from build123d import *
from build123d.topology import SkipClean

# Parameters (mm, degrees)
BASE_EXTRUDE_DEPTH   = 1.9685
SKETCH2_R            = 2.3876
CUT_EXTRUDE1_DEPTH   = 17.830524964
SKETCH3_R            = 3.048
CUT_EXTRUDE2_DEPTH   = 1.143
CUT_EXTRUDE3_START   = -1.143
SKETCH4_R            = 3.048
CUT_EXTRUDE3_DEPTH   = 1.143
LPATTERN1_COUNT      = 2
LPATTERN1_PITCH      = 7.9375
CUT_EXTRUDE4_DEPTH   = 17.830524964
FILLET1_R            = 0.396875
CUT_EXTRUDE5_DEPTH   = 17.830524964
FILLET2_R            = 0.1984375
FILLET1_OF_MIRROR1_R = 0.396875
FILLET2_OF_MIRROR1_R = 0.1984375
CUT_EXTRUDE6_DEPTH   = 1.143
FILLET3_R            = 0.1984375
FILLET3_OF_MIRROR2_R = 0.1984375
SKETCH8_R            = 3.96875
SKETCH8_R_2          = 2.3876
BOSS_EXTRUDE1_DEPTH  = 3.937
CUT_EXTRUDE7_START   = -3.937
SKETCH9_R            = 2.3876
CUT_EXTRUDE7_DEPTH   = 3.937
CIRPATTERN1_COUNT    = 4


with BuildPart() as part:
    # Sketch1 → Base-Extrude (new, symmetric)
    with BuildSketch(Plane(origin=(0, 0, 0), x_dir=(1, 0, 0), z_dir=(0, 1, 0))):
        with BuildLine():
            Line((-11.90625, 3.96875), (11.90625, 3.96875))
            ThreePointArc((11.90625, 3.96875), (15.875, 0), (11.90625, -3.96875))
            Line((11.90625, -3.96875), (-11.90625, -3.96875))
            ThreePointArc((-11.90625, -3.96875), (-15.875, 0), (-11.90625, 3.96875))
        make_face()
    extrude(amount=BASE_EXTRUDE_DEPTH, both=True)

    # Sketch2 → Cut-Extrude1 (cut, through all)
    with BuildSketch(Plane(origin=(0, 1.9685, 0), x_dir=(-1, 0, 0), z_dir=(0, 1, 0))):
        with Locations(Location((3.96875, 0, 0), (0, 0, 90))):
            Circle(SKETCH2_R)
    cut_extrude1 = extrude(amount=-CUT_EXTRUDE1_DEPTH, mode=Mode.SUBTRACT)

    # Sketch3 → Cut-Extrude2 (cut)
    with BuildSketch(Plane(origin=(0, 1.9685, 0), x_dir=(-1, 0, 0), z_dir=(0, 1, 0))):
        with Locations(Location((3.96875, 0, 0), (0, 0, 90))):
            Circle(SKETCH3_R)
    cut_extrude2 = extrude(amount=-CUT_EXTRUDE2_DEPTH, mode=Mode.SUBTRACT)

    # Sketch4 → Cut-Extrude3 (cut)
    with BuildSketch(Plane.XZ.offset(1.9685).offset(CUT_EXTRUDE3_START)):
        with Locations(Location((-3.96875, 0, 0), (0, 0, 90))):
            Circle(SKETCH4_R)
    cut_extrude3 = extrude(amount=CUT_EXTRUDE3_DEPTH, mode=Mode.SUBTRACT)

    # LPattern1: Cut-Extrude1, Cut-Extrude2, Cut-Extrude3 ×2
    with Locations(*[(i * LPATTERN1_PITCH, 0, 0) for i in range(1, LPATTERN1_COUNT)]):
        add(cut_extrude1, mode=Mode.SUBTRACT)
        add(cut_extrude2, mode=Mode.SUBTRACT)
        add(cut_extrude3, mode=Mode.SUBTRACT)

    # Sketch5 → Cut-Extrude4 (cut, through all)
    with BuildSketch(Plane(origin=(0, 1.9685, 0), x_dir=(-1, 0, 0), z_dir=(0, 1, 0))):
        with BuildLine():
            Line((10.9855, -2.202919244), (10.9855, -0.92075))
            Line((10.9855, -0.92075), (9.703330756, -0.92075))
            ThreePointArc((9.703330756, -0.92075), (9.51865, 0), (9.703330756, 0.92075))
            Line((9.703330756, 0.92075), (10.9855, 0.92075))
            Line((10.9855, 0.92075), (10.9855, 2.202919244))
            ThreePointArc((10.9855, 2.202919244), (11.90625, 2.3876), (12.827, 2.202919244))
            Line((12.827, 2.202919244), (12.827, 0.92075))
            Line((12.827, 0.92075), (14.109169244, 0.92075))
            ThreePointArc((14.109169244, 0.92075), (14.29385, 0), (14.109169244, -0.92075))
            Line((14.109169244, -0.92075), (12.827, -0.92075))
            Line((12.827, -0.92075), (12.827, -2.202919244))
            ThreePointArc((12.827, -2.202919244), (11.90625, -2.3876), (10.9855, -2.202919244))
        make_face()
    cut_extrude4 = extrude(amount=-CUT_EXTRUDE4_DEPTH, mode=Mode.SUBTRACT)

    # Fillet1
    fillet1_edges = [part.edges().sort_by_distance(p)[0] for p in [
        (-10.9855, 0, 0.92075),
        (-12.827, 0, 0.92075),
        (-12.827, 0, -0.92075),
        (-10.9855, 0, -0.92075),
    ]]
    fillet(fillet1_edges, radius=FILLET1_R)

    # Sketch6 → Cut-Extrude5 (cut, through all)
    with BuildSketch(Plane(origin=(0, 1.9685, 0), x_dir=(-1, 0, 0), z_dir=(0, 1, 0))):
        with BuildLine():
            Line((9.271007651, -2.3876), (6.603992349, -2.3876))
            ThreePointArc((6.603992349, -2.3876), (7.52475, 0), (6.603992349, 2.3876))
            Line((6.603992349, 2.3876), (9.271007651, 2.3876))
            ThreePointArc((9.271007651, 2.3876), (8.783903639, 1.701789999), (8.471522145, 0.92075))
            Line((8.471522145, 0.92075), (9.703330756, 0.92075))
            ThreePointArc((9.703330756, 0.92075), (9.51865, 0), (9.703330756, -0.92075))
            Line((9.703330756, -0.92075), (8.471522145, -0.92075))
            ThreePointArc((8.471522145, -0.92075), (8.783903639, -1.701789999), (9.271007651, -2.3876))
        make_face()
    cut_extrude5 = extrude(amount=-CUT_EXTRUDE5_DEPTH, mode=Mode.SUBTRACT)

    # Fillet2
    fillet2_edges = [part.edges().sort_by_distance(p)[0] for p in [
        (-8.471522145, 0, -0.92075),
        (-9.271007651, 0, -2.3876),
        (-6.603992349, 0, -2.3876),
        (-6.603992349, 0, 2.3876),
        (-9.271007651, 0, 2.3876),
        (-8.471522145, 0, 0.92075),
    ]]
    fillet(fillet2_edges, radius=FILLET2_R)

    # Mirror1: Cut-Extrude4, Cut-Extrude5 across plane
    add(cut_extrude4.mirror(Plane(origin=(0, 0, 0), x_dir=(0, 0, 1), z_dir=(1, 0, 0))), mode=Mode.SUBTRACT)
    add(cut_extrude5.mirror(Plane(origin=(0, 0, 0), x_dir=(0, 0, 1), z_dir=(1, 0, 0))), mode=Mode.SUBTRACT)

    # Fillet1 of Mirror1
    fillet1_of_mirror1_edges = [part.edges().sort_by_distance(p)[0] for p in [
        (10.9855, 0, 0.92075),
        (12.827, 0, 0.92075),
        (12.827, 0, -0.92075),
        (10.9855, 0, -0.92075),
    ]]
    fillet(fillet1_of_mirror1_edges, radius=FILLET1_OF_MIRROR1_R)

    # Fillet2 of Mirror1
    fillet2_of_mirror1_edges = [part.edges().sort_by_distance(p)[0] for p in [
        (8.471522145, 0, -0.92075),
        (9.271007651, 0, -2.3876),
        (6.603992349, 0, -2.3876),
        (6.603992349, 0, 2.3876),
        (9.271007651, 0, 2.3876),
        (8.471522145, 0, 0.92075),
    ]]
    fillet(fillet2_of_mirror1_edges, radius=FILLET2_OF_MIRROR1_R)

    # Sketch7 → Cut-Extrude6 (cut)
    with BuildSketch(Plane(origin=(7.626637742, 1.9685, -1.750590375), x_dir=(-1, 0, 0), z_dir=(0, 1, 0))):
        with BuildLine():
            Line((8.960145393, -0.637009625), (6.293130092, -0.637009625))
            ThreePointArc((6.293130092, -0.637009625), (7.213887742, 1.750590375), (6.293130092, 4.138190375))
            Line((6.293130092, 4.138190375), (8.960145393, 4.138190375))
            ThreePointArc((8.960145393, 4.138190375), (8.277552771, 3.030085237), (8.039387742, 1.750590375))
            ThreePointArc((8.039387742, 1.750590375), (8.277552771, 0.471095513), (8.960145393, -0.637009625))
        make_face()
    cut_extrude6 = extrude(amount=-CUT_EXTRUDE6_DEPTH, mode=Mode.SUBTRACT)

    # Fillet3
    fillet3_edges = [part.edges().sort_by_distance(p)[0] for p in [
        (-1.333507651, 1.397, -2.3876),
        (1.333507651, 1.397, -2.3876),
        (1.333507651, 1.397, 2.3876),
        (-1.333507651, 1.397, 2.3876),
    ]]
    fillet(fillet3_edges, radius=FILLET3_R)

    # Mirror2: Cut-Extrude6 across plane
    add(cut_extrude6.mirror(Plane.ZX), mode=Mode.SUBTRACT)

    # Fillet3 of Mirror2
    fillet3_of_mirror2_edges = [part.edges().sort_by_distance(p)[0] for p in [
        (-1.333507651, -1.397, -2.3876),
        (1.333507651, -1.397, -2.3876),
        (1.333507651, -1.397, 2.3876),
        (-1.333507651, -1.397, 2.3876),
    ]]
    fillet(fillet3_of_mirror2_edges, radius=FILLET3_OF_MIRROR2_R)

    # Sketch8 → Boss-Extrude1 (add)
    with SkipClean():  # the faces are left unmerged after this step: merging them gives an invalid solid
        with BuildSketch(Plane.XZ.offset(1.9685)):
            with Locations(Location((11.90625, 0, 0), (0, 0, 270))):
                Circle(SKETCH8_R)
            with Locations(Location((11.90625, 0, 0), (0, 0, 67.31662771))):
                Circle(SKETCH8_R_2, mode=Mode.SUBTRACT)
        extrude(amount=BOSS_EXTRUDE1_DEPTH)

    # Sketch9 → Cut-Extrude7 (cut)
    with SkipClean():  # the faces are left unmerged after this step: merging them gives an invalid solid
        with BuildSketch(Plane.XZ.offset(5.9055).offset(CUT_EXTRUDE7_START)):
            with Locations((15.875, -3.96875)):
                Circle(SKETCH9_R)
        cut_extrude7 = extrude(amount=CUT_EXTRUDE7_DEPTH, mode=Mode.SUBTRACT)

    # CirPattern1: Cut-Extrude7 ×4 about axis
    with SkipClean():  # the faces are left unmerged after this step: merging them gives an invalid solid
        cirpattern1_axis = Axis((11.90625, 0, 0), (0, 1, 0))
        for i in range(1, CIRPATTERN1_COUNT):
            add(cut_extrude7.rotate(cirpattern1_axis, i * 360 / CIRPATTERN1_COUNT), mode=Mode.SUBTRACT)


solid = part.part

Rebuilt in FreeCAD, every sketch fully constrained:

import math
import FreeCAD as App
import Part
import Sketcher
from FreeCAD import Vector
Q = App.Units.Quantity


def edges_at(feature, points):
    """Names of the edges that pass closest to the given points."""
    edges = feature.Shape.Edges
    near = lambda p: min(range(len(edges)), key=lambda i: edges[i].distToShape(Part.Vertex(*p))[0])
    return sorted({f"Edge{near(p) + 1}" for p in points})

doc = App.newDocument("Part")
body = doc.addObject("PartDesign::Body", "Body")

# Sketch on XZ plane
sketch1 = body.newObject("Sketcher::SketchObject", "Sketch")
sketch1.AttachmentSupport = (doc.getObject("XZ_Plane"), [""])
sketch1.MapMode = "FlatFace"
sketch1.addGeometry(Part.LineSegment(Vector(11.9, -4, 0), Vector(-11.9, -4, 0)), False)
sketch1.addGeometry(Part.ArcOfCircle(Part.Circle(Vector(-11.9, 0, 0), Vector(0, 0, 1), 4), math.radians(90), math.radians(270)), False)
sketch1.addGeometry(Part.LineSegment(Vector(-11.9, 4, 0), Vector(11.9, 4, 0)), False)
sketch1.addGeometry(Part.ArcOfCircle(Part.Circle(Vector(11.9, 0, 0), Vector(0, 0, 1), 4), math.radians(-90), math.radians(90)), False)
sketch1.addConstraint(Sketcher.Constraint("Tangent", 0, 2, 1, 2))
sketch1.addConstraint(Sketcher.Constraint("Tangent", 1, 1, 2, 1))
sketch1.addConstraint(Sketcher.Constraint("Tangent", 2, 2, 3, 2))
sketch1.addConstraint(Sketcher.Constraint("Tangent", 3, 1, 0, 1))
sketch1.addConstraint(Sketcher.Constraint("Horizontal", 0))
sketch1.addConstraint(Sketcher.Constraint("Horizontal", 2))
sketch1.addConstraint(Sketcher.Constraint("Symmetric", 1, 3, 3, 3, -1, 1))
sketch1.addConstraint(Sketcher.Constraint("Radius", 1, Q("0.15625 in")))
sketch1.addConstraint(Sketcher.Constraint("DistanceX", 0, 2, 0, 1, Q("0.9375 in")))
pad1 = body.newObject("PartDesign::Pad", "Pad")
pad1.Profile = sketch1
pad1.Length = Q("0.155 in")
pad1.Midplane = True

# Sketch on XZ plane
sketch2 = body.newObject("Sketcher::SketchObject", "Sketch001")
sketch2.AttachmentSupport = (doc.getObject("XZ_Plane"), [""])
sketch2.MapMode = "FlatFace"
sketch2.AttachmentOffset = App.Placement(Vector(0, 0, -0.0775 * 25.4), App.Rotation())
sketch2.addGeometry(Part.Circle(Vector(-4, 0, 0), Vector(0, 0, 1), 2.4), False)
sketch2.addConstraint(Sketcher.Constraint("PointOnObject", 0, 3, -1))
sketch2.addConstraint(Sketcher.Constraint("Diameter", 0, Q("0.188 in")))
sketch2.addConstraint(Sketcher.Constraint("DistanceX", 0, 3, -1, 1, Q("0.15625 in")))
pocket1 = body.newObject("PartDesign::Pocket", "Pocket")
pocket1.Profile = sketch2
pocket1.Type = "ThroughAll"
pocket1.Reversed = True

# Sketch on XZ plane
sketch3 = body.newObject("Sketcher::SketchObject", "Sketch002")
sketch3.AttachmentSupport = (doc.getObject("XZ_Plane"), [""])
sketch3.MapMode = "FlatFace"
sketch3.AttachmentOffset = App.Placement(Vector(0, 0, -0.0775 * 25.4), App.Rotation())
sketch3.addGeometry(Part.Circle(Vector(-4, 0, 0), Vector(0, 0, 1), 3), False)
sketch3.addConstraint(Sketcher.Constraint("PointOnObject", 0, 3, -1))
sketch3.addConstraint(Sketcher.Constraint("Diameter", 0, Q("0.24 in")))
sketch3.addConstraint(Sketcher.Constraint("DistanceX", 0, 3, -1, 1, Q("0.15625 in")))
pocket2 = body.newObject("PartDesign::Pocket", "Pocket001")
pocket2.Profile = sketch3
pocket2.Length = Q("0.045 in")
pocket2.Reversed = True

# Sketch on XZ plane
sketch4 = body.newObject("Sketcher::SketchObject", "Sketch003")
sketch4.AttachmentSupport = (doc.getObject("XZ_Plane"), [""])
sketch4.MapMode = "FlatFace"
sketch4.AttachmentOffset = App.Placement(Vector(0, 0, 0.0325 * 25.4), App.Rotation())
sketch4.addGeometry(Part.Circle(Vector(-4, 0, 0), Vector(0, 0, 1), 3), False)
sketch4.addConstraint(Sketcher.Constraint("PointOnObject", 0, 3, -1))
sketch4.addConstraint(Sketcher.Constraint("Diameter", 0, Q("0.24 in")))
sketch4.addConstraint(Sketcher.Constraint("DistanceX", 0, 3, -1, 1, Q("0.15625 in")))
pocket3 = body.newObject("PartDesign::Pocket", "Pocket002")
pocket3.Profile = sketch4
pocket3.Length = Q("0.045 in")
pocket3.Reversed = True
doc.recompute()

linearpattern = body.newObject("PartDesign::LinearPattern", "LinearPattern")
linearpattern.Originals = [pocket1, pocket2, pocket3]
linearpattern.Direction = (doc.getObject("X_Axis"), [""])
linearpattern.Mode = "offset"
linearpattern.Offset = Q("0.3125 in")
linearpattern.Occurrences = 2
body.Tip = linearpattern

# Sketch on XZ plane
sketch5 = body.newObject("Sketcher::SketchObject", "Sketch004")
sketch5.AttachmentSupport = (doc.getObject("XZ_Plane"), [""])
sketch5.MapMode = "FlatFace"
sketch5.AttachmentOffset = App.Placement(Vector(0, 0, -0.0775 * 25.4), App.Rotation())
sketch5.addGeometry(Part.LineSegment(Vector(-11, -0.9, 0), Vector(-11, -2.2, 0)), False)
sketch5.addGeometry(Part.ArcOfCircle(Part.Circle(Vector(-11.9, 0, 0), Vector(0, 0, 1), 2.4), math.radians(-113), math.radians(-67)), False)
sketch5.addGeometry(Part.LineSegment(Vector(-12.8, -2.2, 0), Vector(-12.8, -0.9, 0)), False)
sketch5.addGeometry(Part.LineSegment(Vector(-12.8, -0.9, 0), Vector(-14.1, -0.9, 0)), False)
sketch5.addGeometry(Part.ArcOfCircle(Part.Circle(Vector(-11.9, 0, 0), Vector(0, 0, 1), 2.4), math.radians(157), math.radians(203)), False)
sketch5.addGeometry(Part.LineSegment(Vector(-14.1, 0.9, 0), Vector(-12.8, 0.9, 0)), False)
sketch5.addGeometry(Part.LineSegment(Vector(-12.8, 0.9, 0), Vector(-12.8, 2.2, 0)), False)
sketch5.addGeometry(Part.ArcOfCircle(Part.Circle(Vector(-11.9, 0, 0), Vector(0, 0, 1), 2.4), math.radians(67), math.radians(113)), False)
sketch5.addGeometry(Part.LineSegment(Vector(-11, 2.2, 0), Vector(-11, 0.9, 0)), False)
sketch5.addGeometry(Part.LineSegment(Vector(-11, 0.9, 0), Vector(-9.7, 0.9, 0)), False)
sketch5.addGeometry(Part.ArcOfCircle(Part.Circle(Vector(-11.9, 0, 0), Vector(0, 0, 1), 2.4), math.radians(-23), math.radians(23)), False)
sketch5.addGeometry(Part.LineSegment(Vector(-9.7, -0.9, 0), Vector(-11, -0.9, 0)), False)
sketch5.addConstraint(Sketcher.Constraint("Coincident", 0, 2, 1, 2))
sketch5.addConstraint(Sketcher.Constraint("Coincident", 1, 1, 2, 1))
sketch5.addConstraint(Sketcher.Constraint("Coincident", 2, 2, 3, 1))
sketch5.addConstraint(Sketcher.Constraint("Coincident", 3, 2, 4, 2))
sketch5.addConstraint(Sketcher.Constraint("Coincident", 4, 1, 5, 1))
sketch5.addConstraint(Sketcher.Constraint("Coincident", 5, 2, 6, 1))
sketch5.addConstraint(Sketcher.Constraint("Coincident", 6, 2, 7, 2))
sketch5.addConstraint(Sketcher.Constraint("Coincident", 7, 1, 8, 1))
sketch5.addConstraint(Sketcher.Constraint("Coincident", 8, 2, 9, 1))
sketch5.addConstraint(Sketcher.Constraint("Coincident", 9, 2, 10, 2))
sketch5.addConstraint(Sketcher.Constraint("Coincident", 10, 1, 11, 1))
sketch5.addConstraint(Sketcher.Constraint("Coincident", 11, 2, 0, 1))
sketch5.addConstraint(Sketcher.Constraint("Vertical", 0))
sketch5.addConstraint(Sketcher.Constraint("Vertical", 2))
sketch5.addConstraint(Sketcher.Constraint("Horizontal", 3))
sketch5.addConstraint(Sketcher.Constraint("Horizontal", 5))
sketch5.addConstraint(Sketcher.Constraint("Vertical", 6))
sketch5.addConstraint(Sketcher.Constraint("Vertical", 8))
sketch5.addConstraint(Sketcher.Constraint("Horizontal", 9))
sketch5.addConstraint(Sketcher.Constraint("Horizontal", 11))
sketch5.addConstraint(Sketcher.Constraint("Coincident", 4, 3, 1, 3))
sketch5.addConstraint(Sketcher.Constraint("Coincident", 7, 3, 1, 3))
sketch5.addConstraint(Sketcher.Constraint("Coincident", 10, 3, 1, 3))
sketch5.addConstraint(Sketcher.Constraint("Equal", 1, 4))
sketch5.addConstraint(Sketcher.Constraint("Equal", 4, 7))
sketch5.addConstraint(Sketcher.Constraint("Equal", 7, 10))
sketch5.addConstraint(Sketcher.Constraint("Symmetric", 3, 2, 4, 1, -1))
sketch5.addConstraint(Sketcher.Constraint("Symmetric", 8, 2, 11, 2, -1))
sketch5.addConstraint(Sketcher.Constraint("Horizontal", 0, 2, 1, 1))
sketch5.addConstraint(Sketcher.Constraint("Horizontal", 6, 2, 7, 1))
sketch5.addConstraint(Sketcher.Constraint("Horizontal", 5, 2, 8, 2))
sketch5.addConstraint(Sketcher.Constraint("Equal", 11, 0))
sketch5.addConstraint(Sketcher.Constraint("Radius", 1, Q("0.094 in")))
sketch5.addConstraint(Sketcher.Constraint("DistanceX", 1, 3, -1, 1, Q("0.46875 in")))
sketch5.addConstraint(Sketcher.Constraint("DistanceX", 1, 1, -1, 1, Q("0.505 in")))
pocket4 = body.newObject("PartDesign::Pocket", "Pocket003")
pocket4.Profile = sketch5
pocket4.Type = "ThroughAll"
pocket4.Reversed = True
doc.recompute()

fillet = body.newObject("PartDesign::Fillet", "Fillet")
fillet.Base = (pocket4, edges_at(pocket4, [
    (-10.986, 0, 0.921),
    (-12.827, 0, 0.921),
    (-12.827, 0, -0.921),
    (-10.986, 0, -0.921),
]))
fillet.Radius = Q("0.015625 in")

# Sketch on XZ plane
sketch6 = body.newObject("Sketcher::SketchObject", "Sketch005")
sketch6.AttachmentSupport = (doc.getObject("XZ_Plane"), [""])
sketch6.MapMode = "FlatFace"
sketch6.AttachmentOffset = App.Placement(Vector(0, 0, -0.0775 * 25.4), App.Rotation())
sketch6.addGeometry(Part.LineSegment(Vector(-6.6, -2.4, 0), Vector(-9.3, -2.4, 0)), False)
sketch6.addGeometry(Part.ArcOfCircle(Part.Circle(Vector(-11.9, 0, 0), Vector(0, 0, 1), 3.6), math.radians(-42), math.radians(-15)), False)
sketch6.addGeometry(Part.LineSegment(Vector(-8.5, -0.9, 0), Vector(-9.7, -0.9, 0)), False)
sketch6.addGeometry(Part.ArcOfCircle(Part.Circle(Vector(-11.9, 0, 0), Vector(0, 0, 1), 2.4), math.radians(-23), math.radians(23)), False)
sketch6.addGeometry(Part.LineSegment(Vector(-9.7, 0.9, 0), Vector(-8.5, 0.9, 0)), False)
sketch6.addGeometry(Part.ArcOfCircle(Part.Circle(Vector(-11.9, 0, 0), Vector(0, 0, 1), 3.6), math.radians(15), math.radians(42)), False)
sketch6.addGeometry(Part.LineSegment(Vector(-9.3, 2.4, 0), Vector(-6.6, 2.4, 0)), False)
sketch6.addGeometry(Part.ArcOfCircle(Part.Circle(Vector(-4, 0, 0), Vector(0, 0, 1), 3.6), math.radians(138), math.radians(222)), False)
sketch6.addConstraint(Sketcher.Constraint("Coincident", 0, 2, 1, 1))
sketch6.addConstraint(Sketcher.Constraint("Coincident", 1, 2, 2, 1))
sketch6.addConstraint(Sketcher.Constraint("Coincident", 2, 2, 3, 1))
sketch6.addConstraint(Sketcher.Constraint("Coincident", 3, 2, 4, 1))
sketch6.addConstraint(Sketcher.Constraint("Coincident", 4, 2, 5, 1))
sketch6.addConstraint(Sketcher.Constraint("Coincident", 5, 2, 6, 1))
sketch6.addConstraint(Sketcher.Constraint("Coincident", 6, 2, 7, 1))
sketch6.addConstraint(Sketcher.Constraint("Coincident", 7, 2, 0, 1))
sketch6.addConstraint(Sketcher.Constraint("Horizontal", 0))
sketch6.addConstraint(Sketcher.Constraint("Horizontal", 2))
sketch6.addConstraint(Sketcher.Constraint("Horizontal", 4))
sketch6.addConstraint(Sketcher.Constraint("Horizontal", 6))
sketch6.addConstraint(Sketcher.Constraint("Coincident", 3, 3, 1, 3))
sketch6.addConstraint(Sketcher.Constraint("Coincident", 5, 3, 1, 3))
sketch6.addConstraint(Sketcher.Constraint("Equal", 1, 5))
sketch6.addConstraint(Sketcher.Constraint("Equal", 5, 7))
sketch6.addConstraint(Sketcher.Constraint("Symmetric", 2, 2, 3, 2, -1))
sketch6.addConstraint(Sketcher.Constraint("Symmetric", 6, 2, 7, 2, -1))
sketch6.addConstraint(Sketcher.Constraint("Radius", 1, Q("0.14 in")))
sketch6.addConstraint(Sketcher.Constraint("Radius", 3, Q("0.094 in")))
sketch6.addConstraint(Sketcher.Constraint("DistanceX", 1, 3, -1, 1, Q("0.46875 in")))
sketch6.addConstraint(Sketcher.Constraint("DistanceX", 7, 3, -1, 1, Q("0.15625 in")))
sketch6.addConstraint(Sketcher.Constraint("DistanceY", 0, 2, -1, 1, Q("0.094 in")))
sketch6.addConstraint(Sketcher.Constraint("DistanceY", 2, 2, 3, 2, Q("0.0725 in")))
pocket5 = body.newObject("PartDesign::Pocket", "Pocket004")
pocket5.Profile = sketch6
pocket5.Type = "ThroughAll"
pocket5.Reversed = True
doc.recompute()

fillet2 = body.newObject("PartDesign::Fillet", "Fillet001")
fillet2.Base = (pocket5, edges_at(pocket5, [
    (-8.472, 0, -0.921),
    (-9.271, 0, -2.388),
    (-6.604, 0, -2.388),
    (-6.604, 0, 2.388),
    (-9.271, 0, 2.388),
    (-8.472, 0, 0.921),
]))
fillet2.Radius = 0.198437
doc.recompute()

mirrored = body.newObject("PartDesign::Mirrored", "Mirrored")
mirrored.Originals = [pocket4, pocket5]
mirrored.MirrorPlane = (doc.getObject("YZ_Plane"), [""])
body.Tip = mirrored
doc.recompute()

fillet3 = body.newObject("PartDesign::Fillet", "Fillet002")
fillet3.Base = (mirrored, edges_at(mirrored, [
    (10.986, 0, 0.921),
    (12.827, 0, 0.921),
    (12.827, 0, -0.921),
    (10.986, 0, -0.921),
]))
fillet3.Radius = Q("0.015625 in")
doc.recompute()

fillet4 = body.newObject("PartDesign::Fillet", "Fillet003")
fillet4.Base = (fillet3, edges_at(fillet3, [
    (8.472, 0, -0.921),
    (9.271, 0, -2.388),
    (6.604, 0, -2.388),
    (6.604, 0, 2.388),
    (9.271, 0, 2.388),
    (8.472, 0, 0.921),
]))
fillet4.Radius = 0.198437

# Sketch on XZ plane
sketch7 = body.newObject("Sketcher::SketchObject", "Sketch006")
sketch7.AttachmentSupport = (doc.getObject("XZ_Plane"), [""])
sketch7.MapMode = "FlatFace"
sketch7.AttachmentOffset = App.Placement(Vector(0, 0, -0.0775 * 25.4), App.Rotation())
sketch7.addGeometry(Part.LineSegment(Vector(1.3, -2.4, 0), Vector(-1.3, -2.4, 0)), False)
sketch7.addGeometry(Part.ArcOfCircle(Part.Circle(Vector(-4, 0, 0), Vector(0, 0, 1), 3.6), math.radians(-42), math.radians(0)), False)
sketch7.addGeometry(Part.ArcOfCircle(Part.Circle(Vector(-4, 0, 0), Vector(0, 0, 1), 3.6), math.radians(0), math.radians(42)), False)
sketch7.addGeometry(Part.LineSegment(Vector(-1.3, 2.4, 0), Vector(1.3, 2.4, 0)), False)
sketch7.addGeometry(Part.ArcOfCircle(Part.Circle(Vector(4, 0, 0), Vector(0, 0, 1), 3.6), math.radians(138), math.radians(222)), False)
sketch7.addConstraint(Sketcher.Constraint("Coincident", 0, 2, 1, 1))
sketch7.addConstraint(Sketcher.Constraint("Tangent", 1, 2, 2, 1))
sketch7.addConstraint(Sketcher.Constraint("Coincident", 2, 2, 3, 1))
sketch7.addConstraint(Sketcher.Constraint("Coincident", 3, 2, 4, 1))
sketch7.addConstraint(Sketcher.Constraint("Coincident", 4, 2, 0, 1))
sketch7.addConstraint(Sketcher.Constraint("Horizontal", 0))
sketch7.addConstraint(Sketcher.Constraint("Horizontal", 3))
sketch7.addConstraint(Sketcher.Constraint("Equal", 1, 2))
sketch7.addConstraint(Sketcher.Constraint("Equal", 2, 4))
sketch7.addConstraint(Sketcher.Constraint("Symmetric", 1, 3, 4, 3, -1, 1))
sketch7.addConstraint(Sketcher.Constraint("Symmetric", 0, 2, 2, 2, -1))
sketch7.addConstraint(Sketcher.Constraint("PointOnObject", 1, 2, -1))
sketch7.addConstraint(Sketcher.Constraint("Radius", 1, Q("0.14 in")))
sketch7.addConstraint(Sketcher.Constraint("DistanceX", 1, 3, -1, 1, Q("0.15625 in")))
sketch7.addConstraint(Sketcher.Constraint("DistanceY", 0, 2, -1, 1, Q("0.094 in")))
pocket6 = body.newObject("PartDesign::Pocket", "Pocket005")
pocket6.Profile = sketch7
pocket6.Length = Q("0.045 in")
pocket6.Reversed = True
doc.recompute()

fillet5 = body.newObject("PartDesign::Fillet", "Fillet004")
fillet5.Base = (pocket6, edges_at(pocket6, [
    (-1.334, 1.397, -2.388),
    (1.334, 1.397, -2.388),
    (1.334, 1.397, 2.388),
    (-1.334, 1.397, 2.388),
]))
fillet5.Radius = 0.198437
doc.recompute()

mirrored2 = body.newObject("PartDesign::Mirrored", "Mirrored001")
mirrored2.Originals = [pocket6]
mirrored2.MirrorPlane = (doc.getObject("XZ_Plane"), [""])
body.Tip = mirrored2
doc.recompute()

fillet6 = body.newObject("PartDesign::Fillet", "Fillet005")
fillet6.Base = (mirrored2, edges_at(mirrored2, [
    (-1.334, -1.397, -2.388),
    (1.334, -1.397, -2.388),
    (1.334, -1.397, 2.388),
    (-1.334, -1.397, 2.388),
]))
fillet6.Radius = 0.198437

# Sketch on XZ plane
sketch8 = body.newObject("Sketcher::SketchObject", "Sketch007")
sketch8.AttachmentSupport = (doc.getObject("XZ_Plane"), [""])
sketch8.MapMode = "FlatFace"
sketch8.AttachmentOffset = App.Placement(Vector(0, 0, 0.0775 * 25.4), App.Rotation())
sketch8.addGeometry(Part.Circle(Vector(11.9, 0, 0), Vector(0, 0, 1), 4), False)
sketch8.addGeometry(Part.Circle(Vector(11.9, 0, 0), Vector(0, 0, 1), 2.4), False)
sketch8.addConstraint(Sketcher.Constraint("Coincident", 1, 3, 0, 3))
sketch8.addConstraint(Sketcher.Constraint("PointOnObject", 0, 3, -1))
sketch8.addConstraint(Sketcher.Constraint("Diameter", 0, Q("0.3125 in")))
sketch8.addConstraint(Sketcher.Constraint("Diameter", 1, Q("0.188 in")))
sketch8.addConstraint(Sketcher.Constraint("DistanceX", -1, 1, 0, 3, Q("0.46875 in")))
pad2 = body.newObject("PartDesign::Pad", "Pad001")
pad2.Profile = sketch8
pad2.Length = Q("0.155 in")

# Sketch on XZ plane
sketch9 = body.newObject("Sketcher::SketchObject", "Sketch008")
sketch9.AttachmentSupport = (doc.getObject("XZ_Plane"), [""])
sketch9.MapMode = "FlatFace"
sketch9.AttachmentOffset = App.Placement(Vector(0, 0, 0.0775 * 25.4), App.Rotation())
sketch9.addGeometry(Part.Circle(Vector(15.9, -4, 0), Vector(0, 0, 1), 2.4), False)
sketch9.addConstraint(Sketcher.Constraint("Diameter", 0, Q("0.188 in")))
sketch9.addConstraint(Sketcher.Constraint("DistanceX", -1, 1, 0, 3, Q("0.625 in")))
sketch9.addConstraint(Sketcher.Constraint("DistanceY", 0, 3, -1, 1, Q("0.15625 in")))
pocket7 = body.newObject("PartDesign::Pocket", "Pocket006")
pocket7.Profile = sketch9
pocket7.Length = Q("0.155 in")
pocket7.Reversed = True
doc.recompute()

datumline = body.newObject("PartDesign::Line", "DatumLine")
datumline.Placement = App.Placement(Vector(11.90625, 0, 0), App.Rotation(Vector(0, 0, 1), Vector(0, 1, 0)))
polarpattern = body.newObject("PartDesign::PolarPattern", "PolarPattern")
polarpattern.Originals = [pocket7]
polarpattern.Axis = (datumline, [""])
polarpattern.Angle = 360
polarpattern.Occurrences = 4
body.Tip = polarpattern

doc.recompute()
